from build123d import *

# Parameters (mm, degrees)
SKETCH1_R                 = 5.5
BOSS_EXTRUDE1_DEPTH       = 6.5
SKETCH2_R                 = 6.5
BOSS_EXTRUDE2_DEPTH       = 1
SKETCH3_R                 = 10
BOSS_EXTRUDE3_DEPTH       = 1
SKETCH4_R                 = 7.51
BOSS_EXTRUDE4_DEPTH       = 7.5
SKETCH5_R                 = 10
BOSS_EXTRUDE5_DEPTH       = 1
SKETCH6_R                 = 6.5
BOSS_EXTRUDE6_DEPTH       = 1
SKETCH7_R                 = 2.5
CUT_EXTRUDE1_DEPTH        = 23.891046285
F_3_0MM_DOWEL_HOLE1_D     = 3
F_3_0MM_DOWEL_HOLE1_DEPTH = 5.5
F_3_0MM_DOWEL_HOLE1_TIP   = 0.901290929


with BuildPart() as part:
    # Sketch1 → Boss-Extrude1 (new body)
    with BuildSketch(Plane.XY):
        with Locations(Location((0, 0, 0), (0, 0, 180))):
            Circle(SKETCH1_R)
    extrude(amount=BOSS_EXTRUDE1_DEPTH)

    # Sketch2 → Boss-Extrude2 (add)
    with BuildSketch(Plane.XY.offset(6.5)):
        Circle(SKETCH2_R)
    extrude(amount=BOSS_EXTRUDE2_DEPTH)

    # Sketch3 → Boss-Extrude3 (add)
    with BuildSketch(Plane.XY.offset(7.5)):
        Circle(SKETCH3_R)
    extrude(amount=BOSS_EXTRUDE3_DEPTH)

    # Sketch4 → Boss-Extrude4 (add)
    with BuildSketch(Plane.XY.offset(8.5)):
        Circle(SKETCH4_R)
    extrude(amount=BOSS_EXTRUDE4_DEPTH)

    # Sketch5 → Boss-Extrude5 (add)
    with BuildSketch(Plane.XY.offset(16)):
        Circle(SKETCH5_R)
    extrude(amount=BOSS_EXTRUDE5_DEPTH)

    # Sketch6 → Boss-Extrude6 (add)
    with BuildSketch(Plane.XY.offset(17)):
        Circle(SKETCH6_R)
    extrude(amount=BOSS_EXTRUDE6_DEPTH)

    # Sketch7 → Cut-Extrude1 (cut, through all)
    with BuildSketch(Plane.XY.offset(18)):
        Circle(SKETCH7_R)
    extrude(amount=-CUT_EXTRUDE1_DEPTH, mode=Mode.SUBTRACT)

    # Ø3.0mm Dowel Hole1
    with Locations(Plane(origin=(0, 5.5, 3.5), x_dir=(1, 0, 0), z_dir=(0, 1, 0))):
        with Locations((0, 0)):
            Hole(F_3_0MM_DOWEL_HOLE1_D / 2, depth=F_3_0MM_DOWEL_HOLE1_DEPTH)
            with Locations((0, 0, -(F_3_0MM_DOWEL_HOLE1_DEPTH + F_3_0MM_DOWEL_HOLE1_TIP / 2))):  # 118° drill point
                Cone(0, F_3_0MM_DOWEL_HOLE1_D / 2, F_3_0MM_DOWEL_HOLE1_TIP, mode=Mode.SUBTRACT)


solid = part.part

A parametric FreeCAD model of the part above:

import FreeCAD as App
import Part
import Sketcher

V = App.Vector
Q = App.Units.Quantity

doc = App.newDocument("Part")
body = doc.addObject("PartDesign::Body", "Body")

# Sketch on XY plane
sketch1 = body.newObject("Sketcher::SketchObject", "Sketch")
sketch1.AttachmentSupport = (doc.getObject("XY_Plane"), [""])
sketch1.MapMode = "FlatFace"
sketch1.addGeometry(Part.Circle(V(0, 0, 0), V(0, 0, 1), 6), False)
sketch1.addConstraint([
    Sketcher.Constraint("Coincident", 0, 3, -1, 1),
    Sketcher.Constraint("Diameter", 0, Q("11 mm")),
])
pad1 = body.newObject("PartDesign::Pad", "Pad")
pad1.Profile = sketch1
pad1.Length = 6.5

# Sketch on XY plane
sketch2 = body.newObject("Sketcher::SketchObject", "Sketch001")
sketch2.AttachmentSupport = (doc.getObject("XY_Plane"), [""])
sketch2.MapMode = "FlatFace"
sketch2.AttachmentOffset = App.Placement(V(0, 0, 6.5), App.Rotation())
sketch2.addGeometry(Part.Circle(V(0, 0, 0), V(0, 0, 1), 6), False)
sketch2.addConstraint([
    Sketcher.Constraint("Coincident", 0, 3, -1, 1),
    Sketcher.Constraint("Diameter", 0, Q("13 mm")),
])
pad2 = body.newObject("PartDesign::Pad", "Pad001")
pad2.Profile = sketch2
pad2.Length = 1

# Sketch on XY plane
sketch3 = body.newObject("Sketcher::SketchObject", "Sketch002")
sketch3.AttachmentSupport = (doc.getObject("XY_Plane"), [""])
sketch3.MapMode = "FlatFace"
sketch3.AttachmentOffset = App.Placement(V(0, 0, 7.5), App.Rotation())
sketch3.addGeometry(Part.Circle(V(0, 0, 0), V(0, 0, 1), 10), False)
sketch3.addConstraint([
    Sketcher.Constraint("Coincident", 0, 3, -1, 1),
    Sketcher.Constraint("Diameter", 0, Q("20 mm")),
])
pad3 = body.newObject("PartDesign::Pad", "Pad002")
pad3.Profile = sketch3
pad3.Length = 1

# Sketch on XY plane
sketch4 = body.newObject("Sketcher::SketchObject", "Sketch003")
sketch4.AttachmentSupport = (doc.getObject("XY_Plane"), [""])
sketch4.MapMode = "FlatFace"
sketch4.AttachmentOffset = App.Placement(V(0, 0, 8.5), App.Rotation())
sketch4.addGeometry(Part.Circle(V(0, 0, 0), V(0, 0, 1), 8), False)
sketch4.addConstraint([
    Sketcher.Constraint("Coincident", 0, 3, -1, 1),
    Sketcher.Constraint("Diameter", 0, Q("15.02 mm")),
])
pad4 = body.newObject("PartDesign::Pad", "Pad003")
pad4.Profile = sketch4
pad4.Length = 7.5

# Sketch on XY plane
sketch5 = body.newObject("Sketcher::SketchObject", "Sketch004")
sketch5.AttachmentSupport = (doc.getObject("XY_Plane"), [""])
sketch5.MapMode = "FlatFace"
sketch5.AttachmentOffset = App.Placement(V(0, 0, 16), App.Rotation())
sketch5.addGeometry(Part.Circle(V(0, 0, 0), V(0, 0, 1), 10), False)
sketch5.addConstraint([
    Sketcher.Constraint("Coincident", 0, 3, -1, 1),
    Sketcher.Constraint("Diameter", 0, Q("20 mm")),
])
pad5 = body.newObject("PartDesign::Pad", "Pad004")
pad5.Profile = sketch5
pad5.Length = 1

# Sketch on XY plane
sketch6 = body.newObject("Sketcher::SketchObject", "Sketch005")
sketch6.AttachmentSupport = (doc.getObject("XY_Plane"), [""])
sketch6.MapMode = "FlatFace"
sketch6.AttachmentOffset = App.Placement(V(0, 0, 17), App.Rotation())
sketch6.addGeometry(Part.Circle(V(0, 0, 0), V(0, 0, 1), 6), False)
sketch6.addConstraint([
    Sketcher.Constraint("Coincident", 0, 3, -1, 1),
    Sketcher.Constraint("Diameter", 0, Q("13 mm")),
])
pad6 = body.newObject("PartDesign::Pad", "Pad005")
pad6.Profile = sketch6
pad6.Length = 1

# Sketch on XY plane
sketch7 = body.newObject("Sketcher::SketchObject", "Sketch006")
sketch7.AttachmentSupport = (doc.getObject("XY_Plane"), [""])
sketch7.MapMode = "FlatFace"
sketch7.AttachmentOffset = App.Placement(V(0, 0, 18), App.Rotation())
sketch7.addGeometry(Part.Circle(V(0, 0, 0), V(0, 0, 1), 2.5), False)
sketch7.addConstraint([
    Sketcher.Constraint("Coincident", 0, 3, -1, 1),
    Sketcher.Constraint("Diameter", 0, Q("5 mm")),
])
pocket1 = body.newObject("PartDesign::Pocket", "Pocket")
pocket1.Profile = sketch7
pocket1.Type = "ThroughAll"

# Sketch on XZ plane
sketch8 = body.newObject("Sketcher::SketchObject", "Sketch007")
sketch8.AttachmentSupport = (doc.getObject("XZ_Plane"), [""])
sketch8.MapMode = "FlatFace"
sketch8.AttachmentOffset = App.Placement(V(0, 0, -5.5), App.Rotation())
sketch8.addGeometry(Part.Circle(V(0, 3.5, 0), V(0, 0, 1), 1.5), False)
sketch8.addConstraint([
    Sketcher.Constraint("PointOnObject", 0, 3, -2),
    Sketcher.Constraint("Diameter", 0, Q("3 mm")),
    Sketcher.Constraint("DistanceY", -1, 1, 0, 3, Q("3.5 mm")),
])
doc.recompute()
hole = body.newObject("PartDesign::Hole", "Hole")
hole.Profile = sketch8
hole.ThreadType = "None"
hole.Diameter = 3
hole.DepthType = "Dimension"
hole.Depth = 5.5
hole.DrillPoint = "Angled"
hole.DrillPointAngle = 118
hole.Reversed = True

doc.recompute()
